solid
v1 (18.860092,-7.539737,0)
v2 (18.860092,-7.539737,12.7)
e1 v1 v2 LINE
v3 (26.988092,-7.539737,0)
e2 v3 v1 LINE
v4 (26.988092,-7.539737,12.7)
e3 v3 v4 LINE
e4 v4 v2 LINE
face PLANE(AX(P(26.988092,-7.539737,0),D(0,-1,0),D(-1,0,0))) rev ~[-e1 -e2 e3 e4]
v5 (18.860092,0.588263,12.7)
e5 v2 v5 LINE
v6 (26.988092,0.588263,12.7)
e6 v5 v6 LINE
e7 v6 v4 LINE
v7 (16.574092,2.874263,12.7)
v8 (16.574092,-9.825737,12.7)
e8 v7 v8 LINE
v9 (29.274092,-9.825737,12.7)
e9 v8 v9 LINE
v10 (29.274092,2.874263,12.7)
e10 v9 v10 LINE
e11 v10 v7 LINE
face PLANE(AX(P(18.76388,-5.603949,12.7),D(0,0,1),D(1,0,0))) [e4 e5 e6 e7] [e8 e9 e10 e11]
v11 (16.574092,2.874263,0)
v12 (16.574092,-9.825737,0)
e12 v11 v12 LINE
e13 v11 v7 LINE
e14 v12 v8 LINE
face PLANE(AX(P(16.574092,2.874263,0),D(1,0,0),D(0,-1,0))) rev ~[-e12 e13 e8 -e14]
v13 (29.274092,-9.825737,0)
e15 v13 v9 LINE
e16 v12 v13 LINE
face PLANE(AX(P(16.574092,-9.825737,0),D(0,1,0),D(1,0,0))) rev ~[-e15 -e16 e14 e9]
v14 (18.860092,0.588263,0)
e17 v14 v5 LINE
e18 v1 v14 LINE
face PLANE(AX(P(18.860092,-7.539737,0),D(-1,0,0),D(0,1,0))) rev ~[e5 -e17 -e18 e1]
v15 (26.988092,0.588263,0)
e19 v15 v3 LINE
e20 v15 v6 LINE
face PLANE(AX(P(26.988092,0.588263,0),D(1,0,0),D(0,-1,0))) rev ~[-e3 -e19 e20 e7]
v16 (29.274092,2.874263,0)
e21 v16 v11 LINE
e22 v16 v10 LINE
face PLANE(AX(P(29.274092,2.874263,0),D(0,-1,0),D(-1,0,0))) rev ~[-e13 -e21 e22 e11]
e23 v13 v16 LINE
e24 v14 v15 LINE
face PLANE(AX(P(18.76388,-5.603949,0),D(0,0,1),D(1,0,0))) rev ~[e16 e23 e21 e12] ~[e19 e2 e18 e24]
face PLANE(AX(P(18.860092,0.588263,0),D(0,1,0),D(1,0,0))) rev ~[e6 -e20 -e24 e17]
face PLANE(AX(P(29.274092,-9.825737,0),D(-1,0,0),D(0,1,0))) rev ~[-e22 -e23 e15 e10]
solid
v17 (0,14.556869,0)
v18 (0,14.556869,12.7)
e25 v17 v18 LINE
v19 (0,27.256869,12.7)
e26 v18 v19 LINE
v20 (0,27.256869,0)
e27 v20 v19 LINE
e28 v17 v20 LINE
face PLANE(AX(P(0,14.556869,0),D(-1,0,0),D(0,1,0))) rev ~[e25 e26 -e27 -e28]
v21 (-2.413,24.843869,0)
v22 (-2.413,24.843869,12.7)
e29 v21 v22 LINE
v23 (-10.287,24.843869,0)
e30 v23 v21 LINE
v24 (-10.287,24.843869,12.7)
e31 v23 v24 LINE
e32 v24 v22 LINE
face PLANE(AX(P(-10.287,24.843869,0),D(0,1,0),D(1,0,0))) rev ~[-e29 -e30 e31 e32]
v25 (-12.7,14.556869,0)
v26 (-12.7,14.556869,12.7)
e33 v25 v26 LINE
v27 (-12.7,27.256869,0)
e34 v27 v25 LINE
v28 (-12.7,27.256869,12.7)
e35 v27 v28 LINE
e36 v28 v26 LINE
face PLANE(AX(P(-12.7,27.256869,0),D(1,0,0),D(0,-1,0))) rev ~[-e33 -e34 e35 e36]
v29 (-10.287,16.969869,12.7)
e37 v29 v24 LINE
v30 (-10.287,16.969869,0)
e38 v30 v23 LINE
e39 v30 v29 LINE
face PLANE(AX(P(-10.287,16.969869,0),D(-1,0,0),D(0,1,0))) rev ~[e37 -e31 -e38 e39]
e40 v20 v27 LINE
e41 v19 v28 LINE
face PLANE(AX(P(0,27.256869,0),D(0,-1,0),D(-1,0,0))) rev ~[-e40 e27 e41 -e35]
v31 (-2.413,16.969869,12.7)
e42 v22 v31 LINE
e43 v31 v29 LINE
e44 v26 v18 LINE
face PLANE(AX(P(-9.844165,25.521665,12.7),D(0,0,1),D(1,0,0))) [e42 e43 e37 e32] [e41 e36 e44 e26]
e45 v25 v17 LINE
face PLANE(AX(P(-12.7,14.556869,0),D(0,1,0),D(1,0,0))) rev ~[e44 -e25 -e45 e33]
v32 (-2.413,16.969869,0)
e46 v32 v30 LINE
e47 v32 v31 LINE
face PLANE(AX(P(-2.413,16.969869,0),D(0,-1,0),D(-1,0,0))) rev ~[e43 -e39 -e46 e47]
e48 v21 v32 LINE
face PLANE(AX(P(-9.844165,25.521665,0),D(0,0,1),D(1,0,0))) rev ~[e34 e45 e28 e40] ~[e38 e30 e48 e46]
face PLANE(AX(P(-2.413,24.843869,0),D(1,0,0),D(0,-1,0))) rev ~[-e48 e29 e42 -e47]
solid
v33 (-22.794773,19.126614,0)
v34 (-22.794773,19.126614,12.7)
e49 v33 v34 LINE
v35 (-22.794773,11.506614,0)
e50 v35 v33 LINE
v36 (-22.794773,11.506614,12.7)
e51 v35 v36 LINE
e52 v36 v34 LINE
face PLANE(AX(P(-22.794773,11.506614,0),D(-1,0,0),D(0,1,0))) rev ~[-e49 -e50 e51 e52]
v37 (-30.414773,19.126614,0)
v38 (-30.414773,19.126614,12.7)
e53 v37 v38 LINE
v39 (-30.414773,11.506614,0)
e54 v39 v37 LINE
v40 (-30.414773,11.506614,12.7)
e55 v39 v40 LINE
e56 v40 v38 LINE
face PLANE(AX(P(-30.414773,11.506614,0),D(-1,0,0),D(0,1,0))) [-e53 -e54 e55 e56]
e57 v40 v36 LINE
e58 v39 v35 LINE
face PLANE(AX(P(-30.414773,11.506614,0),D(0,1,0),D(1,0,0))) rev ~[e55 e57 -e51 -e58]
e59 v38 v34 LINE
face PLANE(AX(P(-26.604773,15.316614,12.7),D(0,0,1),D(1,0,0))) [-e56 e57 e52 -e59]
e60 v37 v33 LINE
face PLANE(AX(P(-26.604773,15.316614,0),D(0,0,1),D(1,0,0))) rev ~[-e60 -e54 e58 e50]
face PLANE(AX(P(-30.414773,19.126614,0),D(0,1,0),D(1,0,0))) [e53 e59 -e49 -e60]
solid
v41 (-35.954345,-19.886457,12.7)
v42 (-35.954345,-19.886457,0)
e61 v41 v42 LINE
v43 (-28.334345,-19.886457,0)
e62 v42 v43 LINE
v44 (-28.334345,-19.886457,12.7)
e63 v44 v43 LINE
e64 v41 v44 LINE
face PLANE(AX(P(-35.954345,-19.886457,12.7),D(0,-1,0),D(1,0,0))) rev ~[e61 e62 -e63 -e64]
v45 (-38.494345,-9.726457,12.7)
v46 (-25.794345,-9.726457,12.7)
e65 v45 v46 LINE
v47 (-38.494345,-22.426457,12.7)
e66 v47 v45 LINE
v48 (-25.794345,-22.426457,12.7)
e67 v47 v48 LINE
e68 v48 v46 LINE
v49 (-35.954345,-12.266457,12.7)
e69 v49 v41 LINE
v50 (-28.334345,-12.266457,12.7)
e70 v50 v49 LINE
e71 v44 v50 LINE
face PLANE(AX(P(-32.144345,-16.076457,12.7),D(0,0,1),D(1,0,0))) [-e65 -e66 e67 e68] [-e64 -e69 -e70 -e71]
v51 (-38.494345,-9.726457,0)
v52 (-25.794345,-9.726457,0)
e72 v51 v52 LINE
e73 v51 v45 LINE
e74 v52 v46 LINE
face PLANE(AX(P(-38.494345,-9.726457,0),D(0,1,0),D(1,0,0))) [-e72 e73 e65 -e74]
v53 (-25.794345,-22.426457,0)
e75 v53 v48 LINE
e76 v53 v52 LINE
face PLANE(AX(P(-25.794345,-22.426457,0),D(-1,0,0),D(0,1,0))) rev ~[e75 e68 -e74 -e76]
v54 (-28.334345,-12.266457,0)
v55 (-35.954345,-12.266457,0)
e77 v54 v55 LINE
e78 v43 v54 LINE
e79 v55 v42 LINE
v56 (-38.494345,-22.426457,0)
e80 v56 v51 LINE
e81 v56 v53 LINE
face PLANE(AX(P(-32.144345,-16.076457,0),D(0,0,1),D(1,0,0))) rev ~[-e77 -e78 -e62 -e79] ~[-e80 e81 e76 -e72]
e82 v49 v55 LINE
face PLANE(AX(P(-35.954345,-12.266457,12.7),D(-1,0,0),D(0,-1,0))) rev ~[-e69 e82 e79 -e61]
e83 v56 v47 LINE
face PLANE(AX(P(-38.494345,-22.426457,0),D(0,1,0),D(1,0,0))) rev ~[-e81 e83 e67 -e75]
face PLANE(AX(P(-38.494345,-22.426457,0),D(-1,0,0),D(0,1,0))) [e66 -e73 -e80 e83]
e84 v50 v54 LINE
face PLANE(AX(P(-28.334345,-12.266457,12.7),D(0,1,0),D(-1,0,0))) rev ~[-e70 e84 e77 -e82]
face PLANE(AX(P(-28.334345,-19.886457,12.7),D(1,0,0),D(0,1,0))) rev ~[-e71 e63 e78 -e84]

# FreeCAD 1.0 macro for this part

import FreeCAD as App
import Part
import Sketcher
from FreeCAD import Vector
Q = App.Units.Quantity

doc = App.newDocument("Part")
body = doc.addObject("PartDesign::Body", "Body")

# Sketch on XY plane
sketch1 = body.newObject("Sketcher::SketchObject", "Sketch")
sketch1.AttachmentSupport = (doc.getObject("XY_Plane"), [""])
sketch1.MapMode = "FlatFace"
sketch1.addGeometry(Part.LineSegment(Vector(-38, -10, 0), Vector(-38, -22, 0)), False)
sketch1.addGeometry(Part.LineSegment(Vector(-38, -22, 0), Vector(-26, -22, 0)), False)
sketch1.addGeometry(Part.LineSegment(Vector(-26, -22, 0), Vector(-26, -10, 0)), False)
sketch1.addGeometry(Part.LineSegment(Vector(-26, -10, 0), Vector(-38, -10, 0)), False)
sketch1.addConstraint(Sketcher.Constraint("Coincident", 0, 2, 1, 1))
sketch1.addConstraint(Sketcher.Constraint("Coincident", 1, 2, 2, 1))
sketch1.addConstraint(Sketcher.Constraint("Coincident", 2, 2, 3, 1))
sketch1.addConstraint(Sketcher.Constraint("Coincident", 3, 2, 0, 1))
sketch1.addConstraint(Sketcher.Constraint("Vertical", 0))
sketch1.addConstraint(Sketcher.Constraint("Horizontal", 1))
sketch1.addConstraint(Sketcher.Constraint("Vertical", 2))
sketch1.addConstraint(Sketcher.Constraint("Horizontal", 3))
sketch1.addConstraint(Sketcher.Constraint("Equal", 3, 0))
sketch1.addConstraint(Sketcher.Constraint("DistanceX", 1, 1, 1, 2, Q("0.5 in")))
sketch1.addConstraint(Sketcher.Constraint("DistanceX", 0, 2, -1, 1, Q("38.494345 mm")))
sketch1.addConstraint(Sketcher.Constraint("DistanceY", 0, 2, -1, 1, Q("22.426457 mm")))
pad1 = body.newObject("PartDesign::Pad", "Pad")
pad1.Profile = sketch1
pad1.Length = Q("0.5 in")

# Sketch on XY plane
sketch2 = body.newObject("Sketcher::SketchObject", "Sketch001")
sketch2.AttachmentSupport = (doc.getObject("XY_Plane"), [""])
sketch2.MapMode = "FlatFace"
sketch2.AttachmentOffset = App.Placement(Vector(0, 0, 0.5 * 25.4), App.Rotation())
sketch2.addGeometry(Part.LineSegment(Vector(-28, -20, 0), Vector(-28, -12, 0)), False)
sketch2.addGeometry(Part.LineSegment(Vector(-28, -12, 0), Vector(-36, -12, 0)), False)
sketch2.addGeometry(Part.LineSegment(Vector(-36, -12, 0), Vector(-36, -20, 0)), False)
sketch2.addGeometry(Part.LineSegment(Vector(-36, -20, 0), Vector(-28, -20, 0)), False)
sketch2.addConstraint(Sketcher.Constraint("Coincident", 0, 2, 1, 1))
sketch2.addConstraint(Sketcher.Constraint("Coincident", 1, 2, 2, 1))
sketch2.addConstraint(Sketcher.Constraint("Coincident", 2, 2, 3, 1))
sketch2.addConstraint(Sketcher.Constraint("Coincident", 3, 2, 0, 1))
sketch2.addConstraint(Sketcher.Constraint("Vertical", 0))
sketch2.addConstraint(Sketcher.Constraint("Horizontal", 1))
sketch2.addConstraint(Sketcher.Constraint("Vertical", 2))
sketch2.addConstraint(Sketcher.Constraint("Horizontal", 3))
sketch2.addConstraint(Sketcher.Constraint("Equal", 3, 0))
sketch2.addConstraint(Sketcher.Constraint("DistanceX", 1, 2, 1, 1, Q("0.3 in")))
sketch2.addConstraint(Sketcher.Constraint("DistanceX", 0, 2, -1, 1, Q("28.334345 mm")))
sketch2.addConstraint(Sketcher.Constraint("DistanceY", 0, 2, -1, 1, Q("12.266457 mm")))
pocket1 = body.newObject("PartDesign::Pocket", "Pocket")
pocket1.Profile = sketch2
pocket1.Length = Q("1 in")
body2 = doc.addObject("PartDesign::Body", "Body001")

# Sketch on XY plane
sketch3 = body2.newObject("Sketcher::SketchObject", "Sketch002")
sketch3.AttachmentSupport = (doc.getObject("XY_Plane001"), [""])
sketch3.MapMode = "FlatFace"
sketch3.addGeometry(Part.LineSegment(Vector(17, -10, 0), Vector(29, -10, 0)), False)
sketch3.addGeometry(Part.LineSegment(Vector(29, -10, 0), Vector(29, 3, 0)), False)
sketch3.addGeometry(Part.LineSegment(Vector(29, 3, 0), Vector(17, 3, 0)), False)
sketch3.addGeometry(Part.LineSegment(Vector(17, 3, 0), Vector(17, -10, 0)), False)
sketch3.addGeometry(Part.LineSegment(Vector(27, -8, 0), Vector(19, -8, 0)), False)
sketch3.addGeometry(Part.LineSegment(Vector(19, -8, 0), Vector(19, 1, 0)), False)
sketch3.addGeometry(Part.LineSegment(Vector(19, 1, 0), Vector(27, 1, 0)), False)
sketch3.addGeometry(Part.LineSegment(Vector(27, 1, 0), Vector(27, -8, 0)), False)
sketch3.addConstraint(Sketcher.Constraint("Coincident", 0, 2, 1, 1))
sketch3.addConstraint(Sketcher.Constraint("Coincident", 1, 2, 2, 1))
sketch3.addConstraint(Sketcher.Constraint("Coincident", 2, 2, 3, 1))
sketch3.addConstraint(Sketcher.Constraint("Coincident", 3, 2, 0, 1))
sketch3.addConstraint(Sketcher.Constraint("Coincident", 4, 2, 5, 1))
sketch3.addConstraint(Sketcher.Constraint("Coincident", 5, 2, 6, 1))
sketch3.addConstraint(Sketcher.Constraint("Coincident", 6, 2, 7, 1))
sketch3.addConstraint(Sketcher.Constraint("Coincident", 7, 2, 4, 1))
sketch3.addConstraint(Sketcher.Constraint("Horizontal", 0))
sketch3.addConstraint(Sketcher.Constraint("Vertical", 1))
sketch3.addConstraint(Sketcher.Constraint("Horizontal", 2))
sketch3.addConstraint(Sketcher.Constraint("Vertical", 3))
sketch3.addConstraint(Sketcher.Constraint("Horizontal", 4))
sketch3.addConstraint(Sketcher.Constraint("Vertical", 5))
sketch3.addConstraint(Sketcher.Constraint("Horizontal", 6))
sketch3.addConstraint(Sketcher.Constraint("Vertical", 7))
sketch3.addConstraint(Sketcher.Constraint("Equal", 2, 1))
sketch3.addConstraint(Sketcher.Constraint("Equal", 6, 5))
sketch3.addConstraint(Sketcher.Constraint("DistanceX", 0, 1, 0, 2, Q("0.5 in")))
sketch3.addConstraint(Sketcher.Constraint("DistanceX", 4, 2, 4, 1, Q("0.32 in")))
sketch3.addConstraint(Sketcher.Constraint("DistanceX", 3, 2, 4, 2, Q("0.09 in")))
sketch3.addConstraint(Sketcher.Constraint("DistanceY", 3, 2, 4, 2, Q("0.09 in")))
sketch3.addConstraint(Sketcher.Constraint("DistanceX", -1, 1, 0, 2, Q("29.274092 mm")))
sketch3.addConstraint(Sketcher.Constraint("DistanceY", 0, 2, -1, 1, Q("9.825737 mm")))
pad2 = body2.newObject("PartDesign::Pad", "Pad001")
pad2.Profile = sketch3
pad2.Length = Q("0.5 in")

# Sketch on XY plane
sketch4 = body2.newObject("Sketcher::SketchObject", "Sketch003")
sketch4.AttachmentSupport = (doc.getObject("XY_Plane001"), [""])
sketch4.MapMode = "FlatFace"
sketch4.addGeometry(Part.LineSegment(Vector(17, -10, 0), Vector(29, -10, 0)), False)
sketch4.addGeometry(Part.LineSegment(Vector(29, -10, 0), Vector(29, 3, 0)), False)
sketch4.addGeometry(Part.LineSegment(Vector(29, 3, 0), Vector(17, 3, 0)), False)
sketch4.addGeometry(Part.LineSegment(Vector(17, 3, 0), Vector(17, -10, 0)), False)
sketch4.addGeometry(Part.LineSegment(Vector(27, -8, 0), Vector(19, -8, 0)), False)
sketch4.addGeometry(Part.LineSegment(Vector(19, -8, 0), Vector(19, 1, 0)), False)
sketch4.addGeometry(Part.LineSegment(Vector(19, 1, 0), Vector(27, 1, 0)), False)
sketch4.addGeometry(Part.LineSegment(Vector(27, 1, 0), Vector(27, -8, 0)), False)
sketch4.addConstraint(Sketcher.Constraint("Coincident", 0, 2, 1, 1))
sketch4.addConstraint(Sketcher.Constraint("Coincident", 1, 2, 2, 1))
sketch4.addConstraint(Sketcher.Constraint("Coincident", 2, 2, 3, 1))
sketch4.addConstraint(Sketcher.Constraint("Coincident", 3, 2, 0, 1))
sketch4.addConstraint(Sketcher.Constraint("Coincident", 4, 2, 5, 1))
sketch4.addConstraint(Sketcher.Constraint("Coincident", 5, 2, 6, 1))
sketch4.addConstraint(Sketcher.Constraint("Coincident", 6, 2, 7, 1))
sketch4.addConstraint(Sketcher.Constraint("Coincident", 7, 2, 4, 1))
sketch4.addConstraint(Sketcher.Constraint("Horizontal", 0))
sketch4.addConstraint(Sketcher.Constraint("Vertical", 1))
sketch4.addConstraint(Sketcher.Constraint("Horizontal", 2))
sketch4.addConstraint(Sketcher.Constraint("Vertical", 3))
sketch4.addConstraint(Sketcher.Constraint("Horizontal", 4))
sketch4.addConstraint(Sketcher.Constraint("Vertical", 5))
sketch4.addConstraint(Sketcher.Constraint("Horizontal", 6))
sketch4.addConstraint(Sketcher.Constraint("Vertical", 7))
sketch4.addConstraint(Sketcher.Constraint("Equal", 2, 1))
sketch4.addConstraint(Sketcher.Constraint("Equal", 6, 5))
sketch4.addConstraint(Sketcher.Constraint("DistanceX", 0, 1, 0, 2, Q("0.5 in")))
sketch4.addConstraint(Sketcher.Constraint("DistanceX", 4, 2, 4, 1, Q("0.32 in")))
sketch4.addConstraint(Sketcher.Constraint("DistanceX", 3, 2, 4, 2, Q("0.09 in")))
sketch4.addConstraint(Sketcher.Constraint("DistanceY", 3, 2, 4, 2, Q("0.09 in")))
sketch4.addConstraint(Sketcher.Constraint("DistanceX", -1, 1, 0, 2, Q("29.274092 mm")))
sketch4.addConstraint(Sketcher.Constraint("DistanceY", 0, 2, -1, 1, Q("9.825737 mm")))
pad3 = body2.newObject("PartDesign::Pad", "Pad002")
pad3.Profile = sketch4
pad3.Length = Q("0.5 in")
body3 = doc.addObject("PartDesign::Body", "Body002")

# Sketch on XY plane
sketch5 = body3.newObject("Sketcher::SketchObject", "Sketch004")
sketch5.AttachmentSupport = (doc.getObject("XY_Plane002"), [""])
sketch5.MapMode = "FlatFace"
sketch5.addGeometry(Part.LineSegment(Vector(-30, 19, 0), Vector(-30, 12, 0)), False)
sketch5.addGeometry(Part.LineSegment(Vector(-30, 12, 0), Vector(-23, 12, 0)), False)
sketch5.addGeometry(Part.LineSegment(Vector(-23, 12, 0), Vector(-23, 19, 0)), False)
sketch5.addGeometry(Part.LineSegment(Vector(-23, 19, 0), Vector(-30, 19, 0)), False)
sketch5.addConstraint(Sketcher.Constraint("Coincident", 0, 2, 1, 1))
sketch5.addConstraint(Sketcher.Constraint("Coincident", 1, 2, 2, 1))
sketch5.addConstraint(Sketcher.Constraint("Coincident", 2, 2, 3, 1))
sketch5.addConstraint(Sketcher.Constraint("Coincident", 3, 2, 0, 1))
sketch5.addConstraint(Sketcher.Constraint("Vertical", 0))
sketch5.addConstraint(Sketcher.Constraint("Horizontal", 1))
sketch5.addConstraint(Sketcher.Constraint("Vertical", 2))
sketch5.addConstraint(Sketcher.Constraint("Horizontal", 3))
sketch5.addConstraint(Sketcher.Constraint("Equal", 3, 0))
sketch5.addConstraint(Sketcher.Constraint("DistanceX", 1, 1, 1, 2, Q("0.3 in")))
sketch5.addConstraint(Sketcher.Constraint("DistanceX", 0, 2, -1, 1, Q("30.414773 mm")))
sketch5.addConstraint(Sketcher.Constraint("DistanceY", -1, 1, 0, 2, Q("11.506614 mm")))
pad4 = body3.newObject("PartDesign::Pad", "Pad003")
pad4.Profile = sketch5
pad4.Length = Q("0.5 in")
body4 = doc.addObject("PartDesign::Body", "Body003")

# Sketch on XY plane
sketch6 = body4.newObject("Sketcher::SketchObject", "Sketch005")
sketch6.AttachmentSupport = (doc.getObject("XY_Plane003"), [""])
sketch6.MapMode = "FlatFace"
sketch6.addGeometry(Part.LineSegment(Vector(-13, 27, 0), Vector(-13, 15, 0)), False)
sketch6.addGeometry(Part.LineSegment(Vector(-13, 15, 0), Vector(0, 15, 0)), False)
sketch6.addGeometry(Part.LineSegment(Vector(0, 15, 0), Vector(0, 27, 0)), False)
sketch6.addGeometry(Part.LineSegment(Vector(0, 27, 0), Vector(-13, 27, 0)), False)
sketch6.addGeometry(Part.LineSegment(Vector(-10, 25, 0), Vector(-2, 25, 0)), False)
sketch6.addGeometry(Part.LineSegment(Vector(-2, 25, 0), Vector(-2, 17, 0)), False)
sketch6.addGeometry(Part.LineSegment(Vector(-2, 17, 0), Vector(-10, 17, 0)), False)
sketch6.addGeometry(Part.LineSegment(Vector(-10, 17, 0), Vector(-10, 25, 0)), False)
sketch6.addConstraint(Sketcher.Constraint("Coincident", 0, 2, 1, 1))
sketch6.addConstraint(Sketcher.Constraint("Coincident", 1, 2, 2, 1))
sketch6.addConstraint(Sketcher.Constraint("Coincident", 2, 2, 3, 1))
sketch6.addConstraint(Sketcher.Constraint("Coincident", 3, 2, 0, 1))
sketch6.addConstraint(Sketcher.Constraint("Coincident", 4, 2, 5, 1))
sketch6.addConstraint(Sketcher.Constraint("Coincident", 5, 2, 6, 1))
sketch6.addConstraint(Sketcher.Constraint("Coincident", 6, 2, 7, 1))
sketch6.addConstraint(Sketcher.Constraint("Coincident", 7, 2, 4, 1))
sketch6.addConstraint(Sketcher.Constraint("Vertical", 0))
sketch6.addConstraint(Sketcher.Constraint("Horizontal", 1))
sketch6.addConstraint(Sketcher.Constraint("Vertical", 2))
sketch6.addConstraint(Sketcher.Constraint("Horizontal", 3))
sketch6.addConstraint(Sketcher.Constraint("Horizontal", 4))
sketch6.addConstraint(Sketcher.Constraint("Vertical", 5))
sketch6.addConstraint(Sketcher.Constraint("Horizontal", 6))
sketch6.addConstraint(Sketcher.Constraint("Vertical", 7))
sketch6.addConstraint(Sketcher.Constraint("PointOnObject", 1, 2, -2))
sketch6.addConstraint(Sketcher.Constraint("Equal", 3, 0))
sketch6.addConstraint(Sketcher.Constraint("Equal", 6, 5))
sketch6.addConstraint(Sketcher.Constraint("DistanceX", 1, 1, 1, 2, Q("0.5 in")))
sketch6.addConstraint(Sketcher.Constraint("DistanceX", 4, 1, 4, 2, Q("0.31 in")))
sketch6.addConstraint(Sketcher.Constraint("DistanceX", 4, 2, -1, 1, Q("0.095 in")))
sketch6.addConstraint(Sketcher.Constraint("DistanceY", 4, 2, 2, 2, Q("0.095 in")))
sketch6.addConstraint(Sketcher.Constraint("DistanceY", -1, 1, 0, 2, Q("14.556869 mm")))
pad5 = body4.newObject("PartDesign::Pad", "Pad004")
pad5.Profile = sketch6
pad5.Length = Q("0.5 in")

doc.recompute()
